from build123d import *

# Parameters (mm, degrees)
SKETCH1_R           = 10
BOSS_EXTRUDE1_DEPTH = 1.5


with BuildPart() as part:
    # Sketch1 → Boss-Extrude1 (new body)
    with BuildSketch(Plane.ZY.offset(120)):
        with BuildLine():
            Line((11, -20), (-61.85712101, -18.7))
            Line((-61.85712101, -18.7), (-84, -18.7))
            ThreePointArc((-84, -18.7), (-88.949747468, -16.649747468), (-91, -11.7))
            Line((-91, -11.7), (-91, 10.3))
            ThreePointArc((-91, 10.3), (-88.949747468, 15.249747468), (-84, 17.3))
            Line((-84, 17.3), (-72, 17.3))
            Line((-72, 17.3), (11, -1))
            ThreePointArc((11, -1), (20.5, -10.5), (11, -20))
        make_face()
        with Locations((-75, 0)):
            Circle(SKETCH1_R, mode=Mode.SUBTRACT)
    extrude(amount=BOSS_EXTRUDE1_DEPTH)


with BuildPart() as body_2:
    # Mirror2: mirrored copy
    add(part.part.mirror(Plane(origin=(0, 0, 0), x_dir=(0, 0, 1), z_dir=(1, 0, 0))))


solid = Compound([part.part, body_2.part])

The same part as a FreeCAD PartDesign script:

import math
import FreeCAD as App
import Part
import Sketcher

doc = App.newDocument("Part")
params = doc.addObject("Spreadsheet::Sheet", "Params")
for row, (alias, value) in enumerate([
    ("sketch1_diameter", "20 mm"),
    ("sketch1_radius", "7 mm"),
    ("sketch1_radius2", "9.5 mm"),
    ("sketch1_width", "22 mm"),
    ("sketch1_height", "12 mm"),
    ("pad1_length", "1.5 mm"),
], start=1):
    params.set(f"A{row}", alias)
    params.set(f"B{row}", "=" + value)
    params.setAlias(f"B{row}", alias)

body = doc.addObject("PartDesign::Body", "Body")

# Sketch on YZ plane
sketch1 = body.newObject("Sketcher::SketchObject", "Sketch")
sketch1.AttachmentSupport = (doc.getObject("YZ_Plane"), [""])
sketch1.MapMode = "FlatFace"
sketch1.AttachmentOffset = App.Placement(App.Vector(0, 0, -120), App.Rotation())
sketch1.addGeometry(Part.LineSegment(App.Vector(-18.7, -61.857121, 0), App.Vector(-20, 11, 0)), False)
sketch1.addGeometry(Part.ArcOfCircle(Part.Circle(App.Vector(-10.5, 11, 0), App.Vector(0, 0, 1), 9.5), math.radians(0), math.radians(180)), False)
sketch1.addGeometry(Part.LineSegment(App.Vector(-1, 11, 0), App.Vector(17.3, -72, 0)), False)
sketch1.addGeometry(Part.LineSegment(App.Vector(17.3, -72, 0), App.Vector(17.3, -84, 0)), False)
sketch1.addGeometry(Part.ArcOfCircle(Part.Circle(App.Vector(10.3, -84, 0), App.Vector(0, 0, 1), 7), math.radians(-90), math.radians(0)), False)
sketch1.addGeometry(Part.LineSegment(App.Vector(10.3, -91, 0), App.Vector(-11.7, -91, 0)), False)
sketch1.addGeometry(Part.ArcOfCircle(Part.Circle(App.Vector(-11.7, -84, 0), App.Vector(0, 0, 1), 7), math.radians(-180), math.radians(-90)), False)
sketch1.addGeometry(Part.LineSegment(App.Vector(-18.7, -84, 0), App.Vector(-18.7, -61.857121, 0)), False)
sketch1.addGeometry(Part.Circle(App.Vector(0, -75, 0), App.Vector(0, 0, 1), 10), False)
sketch1.addConstraint(Sketcher.Constraint("Coincident", 0, 2, 1, 2))
sketch1.addConstraint(Sketcher.Constraint("Coincident", 1, 1, 2, 1))
sketch1.addConstraint(Sketcher.Constraint("Coincident", 2, 2, 3, 1))
sketch1.addConstraint(Sketcher.Constraint("Tangent", 3, 2, 4, 2))
sketch1.addConstraint(Sketcher.Constraint("Tangent", 4, 1, 5, 1))
sketch1.addConstraint(Sketcher.Constraint("Tangent", 5, 2, 6, 2))
sketch1.addConstraint(Sketcher.Constraint("Tangent", 6, 1, 7, 1))
sketch1.addConstraint(Sketcher.Constraint("Coincident", 7, 2, 0, 1))
sketch1.addConstraint(Sketcher.Constraint("Vertical", 3))
sketch1.addConstraint(Sketcher.Constraint("Horizontal", 5))
sketch1.addConstraint(Sketcher.Constraint("Vertical", 7))
sketch1.addConstraint(Sketcher.Constraint("Equal", 4, 6))
sketch1.addConstraint(Sketcher.Constraint("PointOnObject", 8, 3, -2))
sketch1.addConstraint(Sketcher.Constraint("Horizontal", 1, 3, 0, 2))
sketch1.addConstraint(Sketcher.Constraint("Horizontal", 0, 2, 1, 1))
sketch1.addConstraint(Sketcher.Constraint("Diameter", 8, 20.0))
sketch1.addConstraint(Sketcher.Constraint("Radius", 4, 7.0))
sketch1.addConstraint(Sketcher.Constraint("Radius", 1, 9.5))
sketch1.addConstraint(Sketcher.Constraint("DistanceX", 5, 2, 5, 1, 22.0))
sketch1.addConstraint(Sketcher.Constraint("DistanceY", 3, 2, 3, 1, 12.0))
sketch1.addConstraint(Sketcher.Constraint("DistanceY", -1, 1, 1, 3, 11.0))
sketch1.addConstraint(Sketcher.Constraint("DistanceY", 4, 3, -1, 1, 84.0))
sketch1.addConstraint(Sketcher.Constraint("DistanceY", 8, 3, -1, 1, 75.0))
sketch1.addConstraint(Sketcher.Constraint("DistanceX", 0, 2, -1, 1, 20.0))
sketch1.addConstraint(Sketcher.Constraint("DistanceX", -1, 1, 4, 3, 10.3))
sketch1.addConstraint(Sketcher.Constraint("DistanceY", 7, 1, 7, 2, 22.142879))
sketch1.setExpression("Constraints[15]", "Params.sketch1_diameter")
sketch1.setExpression("Constraints[16]", "Params.sketch1_radius")
sketch1.setExpression("Constraints[17]", "Params.sketch1_radius2")
sketch1.setExpression("Constraints[18]", "Params.sketch1_width")
sketch1.setExpression("Constraints[19]", "Params.sketch1_height")
pad1 = body.newObject("PartDesign::Pad", "Pad")
pad1.Profile = sketch1
pad1.setExpression("Length", "Params.pad1_length")
pad1.Reversed = True
body2 = doc.addObject("PartDesign::Body", "Body001")
doc.recompute()

mirroring = doc.addObject("Part::Mirroring", "Mirroring")
mirroring.Source = body
mirroring.Base = App.Vector(0, 0, 0)
mirroring.Normal = App.Vector(1, 0, 0)
body2.BaseFeature = mirroring
doc.recompute()
mirroring.Visibility = False

doc.recompute()
